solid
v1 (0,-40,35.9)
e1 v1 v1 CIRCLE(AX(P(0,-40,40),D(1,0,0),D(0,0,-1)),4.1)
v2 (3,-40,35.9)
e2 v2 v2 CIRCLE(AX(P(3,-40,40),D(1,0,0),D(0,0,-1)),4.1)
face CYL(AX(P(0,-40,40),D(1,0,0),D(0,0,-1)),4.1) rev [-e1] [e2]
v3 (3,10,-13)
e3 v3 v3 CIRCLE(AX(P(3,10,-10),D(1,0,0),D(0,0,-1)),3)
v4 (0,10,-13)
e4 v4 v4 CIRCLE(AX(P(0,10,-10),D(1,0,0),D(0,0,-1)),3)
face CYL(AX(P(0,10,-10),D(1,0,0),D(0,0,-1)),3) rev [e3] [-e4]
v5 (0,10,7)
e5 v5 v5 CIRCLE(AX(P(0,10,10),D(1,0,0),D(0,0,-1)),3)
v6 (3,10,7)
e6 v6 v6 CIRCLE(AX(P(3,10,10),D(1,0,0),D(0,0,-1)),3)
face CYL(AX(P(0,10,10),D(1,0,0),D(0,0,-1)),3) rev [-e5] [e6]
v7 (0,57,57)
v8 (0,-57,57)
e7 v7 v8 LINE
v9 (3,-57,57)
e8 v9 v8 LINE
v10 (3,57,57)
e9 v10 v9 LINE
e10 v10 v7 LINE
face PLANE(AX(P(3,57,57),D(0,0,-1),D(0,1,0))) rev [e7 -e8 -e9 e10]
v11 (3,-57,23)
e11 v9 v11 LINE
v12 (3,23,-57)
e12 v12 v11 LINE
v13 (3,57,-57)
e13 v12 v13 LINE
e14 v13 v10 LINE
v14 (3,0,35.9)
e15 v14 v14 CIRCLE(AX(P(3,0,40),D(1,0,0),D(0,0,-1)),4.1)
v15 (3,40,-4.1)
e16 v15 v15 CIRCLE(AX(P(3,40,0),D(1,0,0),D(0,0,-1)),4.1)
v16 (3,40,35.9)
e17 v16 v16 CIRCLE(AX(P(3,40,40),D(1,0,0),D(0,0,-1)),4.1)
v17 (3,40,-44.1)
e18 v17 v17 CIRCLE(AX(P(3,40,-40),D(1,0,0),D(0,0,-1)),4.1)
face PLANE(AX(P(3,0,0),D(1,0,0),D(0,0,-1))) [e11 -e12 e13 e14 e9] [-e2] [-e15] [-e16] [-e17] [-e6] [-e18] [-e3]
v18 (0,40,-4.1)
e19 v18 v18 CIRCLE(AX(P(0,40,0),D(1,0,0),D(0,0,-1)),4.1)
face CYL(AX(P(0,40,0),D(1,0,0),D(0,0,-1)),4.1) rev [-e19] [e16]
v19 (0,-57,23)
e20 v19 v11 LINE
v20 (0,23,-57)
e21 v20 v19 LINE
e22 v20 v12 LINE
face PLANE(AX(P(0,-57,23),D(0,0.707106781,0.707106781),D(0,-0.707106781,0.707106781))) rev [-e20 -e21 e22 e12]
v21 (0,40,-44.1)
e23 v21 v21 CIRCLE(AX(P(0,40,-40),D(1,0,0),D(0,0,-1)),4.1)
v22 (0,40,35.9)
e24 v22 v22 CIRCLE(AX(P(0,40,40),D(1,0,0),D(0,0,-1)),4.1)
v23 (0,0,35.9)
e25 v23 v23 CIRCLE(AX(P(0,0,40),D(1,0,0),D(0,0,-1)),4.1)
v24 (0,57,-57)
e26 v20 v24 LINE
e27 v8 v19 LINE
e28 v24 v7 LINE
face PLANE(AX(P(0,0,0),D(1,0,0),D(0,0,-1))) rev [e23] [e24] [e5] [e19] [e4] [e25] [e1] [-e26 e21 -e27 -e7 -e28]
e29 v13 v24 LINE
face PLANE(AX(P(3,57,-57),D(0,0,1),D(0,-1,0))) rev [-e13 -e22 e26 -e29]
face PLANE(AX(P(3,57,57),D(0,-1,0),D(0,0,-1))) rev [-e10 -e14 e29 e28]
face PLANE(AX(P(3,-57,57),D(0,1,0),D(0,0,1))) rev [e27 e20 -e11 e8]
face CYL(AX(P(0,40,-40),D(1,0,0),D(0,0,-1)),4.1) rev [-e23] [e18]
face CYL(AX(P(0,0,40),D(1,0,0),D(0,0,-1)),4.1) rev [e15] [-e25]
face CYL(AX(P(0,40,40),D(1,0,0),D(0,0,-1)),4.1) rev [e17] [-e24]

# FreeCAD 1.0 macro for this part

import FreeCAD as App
import Part
import Sketcher
from FreeCAD import Vector


def add_polygon(sketch, points):
    """Adds a closed chain of lines whose ends are joined by coincident constraints."""
    first, n = sketch.GeometryCount, len(points)
    for a, b in zip(points, points[1:] + points[:1]):
        sketch.addGeometry(Part.LineSegment(App.Vector(*a, 0), App.Vector(*b, 0)), False)
    for i in range(n):
        sketch.addConstraint(Sketcher.Constraint("Coincident", first + i, 2, first + (i + 1) % n, 1))

doc = App.newDocument("Part")
body = doc.addObject("PartDesign::Body", "Body")

# Sketch on YZ plane
sketch1 = doc.addObject("Sketcher::SketchObject", "Sketch")
body.addObject(sketch1)
sketch1.AttachmentSupport = (doc.YZ_Plane, [""])
sketch1.MapMode = "FlatFace"
add_polygon(sketch1, [(57, 57), (-57, 57), (-57, -57), (57, -57)])  # lines 0-3
sketch1.addConstraint(Sketcher.Constraint("Horizontal", 0))
sketch1.addConstraint(Sketcher.Constraint("Vertical", 1))
sketch1.addConstraint(Sketcher.Constraint("Horizontal", 2))
sketch1.addConstraint(Sketcher.Constraint("Vertical", 3))
sketch1.addConstraint(Sketcher.Constraint("Symmetric", 0, 2, 2, 2, -1, 1))
sketch1.addConstraint(Sketcher.Constraint("Equal", 2, 1))
sketch1.addConstraint(Sketcher.Constraint("DistanceX", 0, 2, 0, 1, 114.0))
pad1 = doc.addObject("PartDesign::Pad", "Pad")
body.addObject(pad1)
pad1.Profile = sketch1
pad1.Length = 3

# Sketch on YZ plane
sketch2 = doc.addObject("Sketcher::SketchObject", "Sketch001")
body.addObject(sketch2)
sketch2.AttachmentSupport = (doc.YZ_Plane, [""])
sketch2.MapMode = "FlatFace"
sketch2.AttachmentOffset = App.Placement(Vector(0, 0, 3), App.Rotation())
sketch2.addGeometry(Part.Circle(Vector(40, 0, 0), Vector(0, 0, 1), 4.1), False)
sketch2.addGeometry(Part.Circle(Vector(40, -40, 0), Vector(0, 0, 1), 4.1), False)
sketch2.addGeometry(Part.Circle(Vector(0, 40, 0), Vector(0, 0, 1), 4.1), False)
sketch2.addGeometry(Part.Circle(Vector(-40, 40, 0), Vector(0, 0, 1), 4.1), False)
sketch2.addGeometry(Part.Circle(Vector(40, 40, 0), Vector(0, 0, 1), 4.1), False)
sketch2.addConstraint(Sketcher.Constraint("Equal", 0, 1))
sketch2.addConstraint(Sketcher.Constraint("Equal", 1, 2))
sketch2.addConstraint(Sketcher.Constraint("Equal", 2, 3))
sketch2.addConstraint(Sketcher.Constraint("Equal", 3, 4))
sketch2.addConstraint(Sketcher.Constraint("Symmetric", 1, 3, 3, 3, -1, 1))
sketch2.addConstraint(Sketcher.Constraint("Symmetric", 3, 3, 4, 3, -2))
sketch2.addConstraint(Sketcher.Constraint("PointOnObject", 0, 3, -1))
sketch2.addConstraint(Sketcher.Constraint("PointOnObject", 2, 3, -2))
sketch2.addConstraint(Sketcher.Constraint("Horizontal", 2, 3, 3, 3))
sketch2.addConstraint(Sketcher.Constraint("Vertical", 0, 3, 1, 3))
sketch2.addConstraint(Sketcher.Constraint("Diameter", 0, 8.2))
sketch2.addConstraint(Sketcher.Constraint("DistanceX", -1, 1, 0, 3, 40.0))
sketch2.addConstraint(Sketcher.Constraint("DistanceY", 1, 3, -1, 1, 40.0))
pocket1 = doc.addObject("PartDesign::Pocket", "Pocket")
body.addObject(pocket1)
pocket1.Profile = sketch2
pocket1.Type = "ThroughAll"

# Sketch on YZ plane
sketch3 = doc.addObject("Sketcher::SketchObject", "Sketch002")
body.addObject(sketch3)
sketch3.AttachmentSupport = (doc.YZ_Plane, [""])
sketch3.MapMode = "FlatFace"
sketch3.AttachmentOffset = App.Placement(Vector(0, 0, 3), App.Rotation())
add_polygon(sketch3, [(-57, -57), (23, -57), (-57, 23)])  # lines 0-2
sketch3.addConstraint(Sketcher.Constraint("Horizontal", 0))
sketch3.addConstraint(Sketcher.Constraint("Vertical", 2))
sketch3.addConstraint(Sketcher.Constraint("Equal", 0, 2))
sketch3.addConstraint(Sketcher.Constraint("DistanceX", 0, 1, 0, 2, 80.0))
sketch3.addConstraint(Sketcher.Constraint("DistanceX", -1, 1, 0, 2, 23.0))
sketch3.addConstraint(Sketcher.Constraint("DistanceY", 0, 2, -1, 1, 57.0))
pocket2 = doc.addObject("PartDesign::Pocket", "Pocket001")
body.addObject(pocket2)
pocket2.Profile = sketch3
pocket2.Type = "ThroughAll"

# Sketch on YZ plane
sketch4 = doc.addObject("Sketcher::SketchObject", "Sketch003")
body.addObject(sketch4)
sketch4.AttachmentSupport = (doc.YZ_Plane, [""])
sketch4.MapMode = "FlatFace"
sketch4.AttachmentOffset = App.Placement(Vector(0, 0, 3), App.Rotation())
sketch4.addGeometry(Part.Circle(Vector(10, 10, 0), Vector(0, 0, 1), 3), False)
sketch4.addGeometry(Part.Circle(Vector(10, -10, 0), Vector(0, 0, 1), 3), False)
sketch4.addConstraint(Sketcher.Constraint("Equal", 0, 1))
sketch4.addConstraint(Sketcher.Constraint("Symmetric", 0, 3, 1, 3, -1))
sketch4.addConstraint(Sketcher.Constraint("Diameter", 0, 6.0))
sketch4.addConstraint(Sketcher.Constraint("DistanceX", -1, 1, 0, 3, 10.0))
sketch4.addConstraint(Sketcher.Constraint("DistanceY", -1, 1, 0, 3, 10.0))
pocket3 = doc.addObject("PartDesign::Pocket", "Pocket002")
body.addObject(pocket3)
pocket3.Profile = sketch4
pocket3.Type = "ThroughAll"

doc.recompute()
